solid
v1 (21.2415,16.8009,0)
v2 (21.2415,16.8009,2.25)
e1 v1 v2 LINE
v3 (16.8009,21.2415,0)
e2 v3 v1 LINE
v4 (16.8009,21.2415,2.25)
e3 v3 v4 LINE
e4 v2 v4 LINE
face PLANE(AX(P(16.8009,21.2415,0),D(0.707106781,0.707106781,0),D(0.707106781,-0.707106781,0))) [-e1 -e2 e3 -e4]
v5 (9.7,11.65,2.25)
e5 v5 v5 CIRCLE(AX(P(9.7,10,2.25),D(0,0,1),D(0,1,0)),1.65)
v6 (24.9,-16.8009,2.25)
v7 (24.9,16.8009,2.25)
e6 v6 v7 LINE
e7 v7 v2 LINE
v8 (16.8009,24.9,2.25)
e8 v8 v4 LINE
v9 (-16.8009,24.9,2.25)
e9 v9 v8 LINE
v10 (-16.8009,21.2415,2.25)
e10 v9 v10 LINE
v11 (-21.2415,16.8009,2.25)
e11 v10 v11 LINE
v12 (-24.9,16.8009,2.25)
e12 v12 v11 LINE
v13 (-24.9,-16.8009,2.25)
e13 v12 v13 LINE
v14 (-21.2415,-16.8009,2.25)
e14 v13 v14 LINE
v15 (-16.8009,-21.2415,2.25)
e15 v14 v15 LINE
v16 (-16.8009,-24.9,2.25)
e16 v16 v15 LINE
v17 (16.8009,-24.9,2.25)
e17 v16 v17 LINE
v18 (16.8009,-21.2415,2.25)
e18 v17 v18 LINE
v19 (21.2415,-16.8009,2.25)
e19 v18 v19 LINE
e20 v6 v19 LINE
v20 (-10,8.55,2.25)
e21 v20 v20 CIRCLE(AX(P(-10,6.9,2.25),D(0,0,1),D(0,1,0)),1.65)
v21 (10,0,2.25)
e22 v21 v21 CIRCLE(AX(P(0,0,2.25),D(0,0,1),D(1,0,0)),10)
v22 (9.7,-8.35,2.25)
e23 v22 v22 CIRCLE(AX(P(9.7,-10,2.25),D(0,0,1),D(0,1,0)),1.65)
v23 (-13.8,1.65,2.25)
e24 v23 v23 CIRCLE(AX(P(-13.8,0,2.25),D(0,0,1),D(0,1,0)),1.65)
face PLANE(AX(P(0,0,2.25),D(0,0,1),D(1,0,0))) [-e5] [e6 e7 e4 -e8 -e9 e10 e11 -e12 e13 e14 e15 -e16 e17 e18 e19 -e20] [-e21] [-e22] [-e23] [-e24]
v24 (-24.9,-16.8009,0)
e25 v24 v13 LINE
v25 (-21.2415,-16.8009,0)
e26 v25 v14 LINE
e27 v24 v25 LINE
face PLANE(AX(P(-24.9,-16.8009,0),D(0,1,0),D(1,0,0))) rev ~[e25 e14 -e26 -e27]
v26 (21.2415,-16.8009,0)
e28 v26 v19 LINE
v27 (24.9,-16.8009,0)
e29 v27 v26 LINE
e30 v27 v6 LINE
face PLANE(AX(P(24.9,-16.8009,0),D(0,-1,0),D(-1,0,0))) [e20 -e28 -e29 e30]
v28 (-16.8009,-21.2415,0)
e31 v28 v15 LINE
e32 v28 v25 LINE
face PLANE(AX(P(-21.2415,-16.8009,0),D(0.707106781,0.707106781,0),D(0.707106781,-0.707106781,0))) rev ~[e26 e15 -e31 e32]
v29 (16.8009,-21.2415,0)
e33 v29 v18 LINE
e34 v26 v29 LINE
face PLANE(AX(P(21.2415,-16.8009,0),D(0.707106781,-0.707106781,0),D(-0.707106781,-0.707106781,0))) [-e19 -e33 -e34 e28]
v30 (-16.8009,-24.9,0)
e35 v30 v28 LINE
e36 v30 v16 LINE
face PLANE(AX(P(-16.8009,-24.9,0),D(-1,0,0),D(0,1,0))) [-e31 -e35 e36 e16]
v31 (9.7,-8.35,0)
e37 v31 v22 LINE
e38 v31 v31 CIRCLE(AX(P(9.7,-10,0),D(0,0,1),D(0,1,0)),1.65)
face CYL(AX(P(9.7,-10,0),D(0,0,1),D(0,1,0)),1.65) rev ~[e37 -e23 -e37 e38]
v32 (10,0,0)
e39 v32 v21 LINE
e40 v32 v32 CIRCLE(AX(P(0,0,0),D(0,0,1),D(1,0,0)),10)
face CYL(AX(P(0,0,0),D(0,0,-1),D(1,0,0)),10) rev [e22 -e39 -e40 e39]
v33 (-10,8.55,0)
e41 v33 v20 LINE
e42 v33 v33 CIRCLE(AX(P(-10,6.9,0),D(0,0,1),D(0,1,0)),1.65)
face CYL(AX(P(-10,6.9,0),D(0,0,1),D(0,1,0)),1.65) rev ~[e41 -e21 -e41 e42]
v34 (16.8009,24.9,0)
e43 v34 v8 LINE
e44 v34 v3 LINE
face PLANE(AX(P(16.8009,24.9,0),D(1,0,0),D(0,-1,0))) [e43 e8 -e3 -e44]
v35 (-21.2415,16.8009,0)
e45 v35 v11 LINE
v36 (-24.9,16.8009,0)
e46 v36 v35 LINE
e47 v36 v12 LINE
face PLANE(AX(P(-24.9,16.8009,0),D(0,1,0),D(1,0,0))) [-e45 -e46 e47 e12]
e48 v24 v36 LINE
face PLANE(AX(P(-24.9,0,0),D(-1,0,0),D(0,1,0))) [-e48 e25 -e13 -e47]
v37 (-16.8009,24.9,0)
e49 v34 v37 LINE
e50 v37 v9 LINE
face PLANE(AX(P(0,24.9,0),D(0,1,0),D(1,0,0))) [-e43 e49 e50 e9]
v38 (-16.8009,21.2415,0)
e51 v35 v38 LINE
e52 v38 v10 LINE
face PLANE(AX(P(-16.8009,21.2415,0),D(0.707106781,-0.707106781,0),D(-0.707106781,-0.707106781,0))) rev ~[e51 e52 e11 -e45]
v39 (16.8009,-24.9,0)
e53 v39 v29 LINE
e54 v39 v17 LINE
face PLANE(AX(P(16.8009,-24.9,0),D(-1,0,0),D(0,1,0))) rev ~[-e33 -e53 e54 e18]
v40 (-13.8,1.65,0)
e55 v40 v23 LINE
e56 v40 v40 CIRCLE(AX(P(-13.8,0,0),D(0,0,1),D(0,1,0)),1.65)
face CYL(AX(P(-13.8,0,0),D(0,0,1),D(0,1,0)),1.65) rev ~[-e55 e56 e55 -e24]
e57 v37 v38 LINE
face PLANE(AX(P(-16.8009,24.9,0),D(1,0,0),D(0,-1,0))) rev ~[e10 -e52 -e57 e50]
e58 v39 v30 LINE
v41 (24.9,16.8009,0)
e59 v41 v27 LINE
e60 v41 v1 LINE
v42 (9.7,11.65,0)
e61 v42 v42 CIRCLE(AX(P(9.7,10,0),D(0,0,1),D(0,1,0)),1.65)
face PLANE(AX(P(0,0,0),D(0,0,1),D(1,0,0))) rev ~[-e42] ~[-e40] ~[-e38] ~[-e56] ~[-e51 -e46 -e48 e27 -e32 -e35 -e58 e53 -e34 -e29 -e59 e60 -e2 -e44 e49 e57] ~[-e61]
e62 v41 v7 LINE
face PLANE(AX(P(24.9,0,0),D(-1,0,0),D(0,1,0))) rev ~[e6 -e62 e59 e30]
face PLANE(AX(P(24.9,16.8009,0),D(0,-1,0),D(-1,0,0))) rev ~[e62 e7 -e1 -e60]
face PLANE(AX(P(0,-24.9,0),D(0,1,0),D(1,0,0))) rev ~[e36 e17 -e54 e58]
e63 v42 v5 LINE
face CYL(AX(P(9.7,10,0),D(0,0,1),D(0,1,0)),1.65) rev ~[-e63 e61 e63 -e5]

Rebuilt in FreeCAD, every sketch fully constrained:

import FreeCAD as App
import Part
import Sketcher
from FreeCAD import Vector


def add_polygon(sketch, points):
    """Adds a closed chain of lines whose ends are joined by coincident constraints."""
    first, n = sketch.GeometryCount, len(points)
    for a, b in zip(points, points[1:] + points[:1]):
        sketch.addGeometry(Part.LineSegment(App.Vector(*a, 0), App.Vector(*b, 0)), False)
    for i in range(n):
        sketch.addConstraint(Sketcher.Constraint("Coincident", first + i, 2, first + (i + 1) % n, 1))

doc = App.newDocument("Part")
body = doc.addObject("PartDesign::Body", "Body")

# Sketch on XY plane
sketch1 = body.newObject("Sketcher::SketchObject", "Sketch")
sketch1.AttachmentSupport = (doc.getObject("XY_Plane"), [""])
sketch1.MapMode = "FlatFace"
add_polygon(sketch1, [(16.8009, 24.9), (-16.8009, 24.9), (-16.8009, 21.2415), (-21.2415, 16.8009), (-24.9, 16.8009), (-24.9, -16.8009), (-21.2415, -16.8009), (-16.8009, -21.2415), (-16.8009, -24.9), (16.8009, -24.9), (16.8009, -21.2415), (21.2415, -16.8009), (24.9, -16.8009), (24.9, 16.8009), (21.2415, 16.8009), (16.8009, 21.2415)])  # lines 0-15
sketch1.addGeometry(Part.Circle(Vector(0, 0, 0), Vector(0, 0, 1), 10), False)  # 16
sketch1.addConstraint([
    Sketcher.Constraint("Horizontal", 0),
    Sketcher.Constraint("Vertical", 1),
    Sketcher.Constraint("Horizontal", 3),
    Sketcher.Constraint("Vertical", 4),
    Sketcher.Constraint("Horizontal", 5),
    Sketcher.Constraint("Vertical", 7),
    Sketcher.Constraint("Horizontal", 8),
    Sketcher.Constraint("Vertical", 9),
    Sketcher.Constraint("Horizontal", 11),
    Sketcher.Constraint("Vertical", 12),
    Sketcher.Constraint("Horizontal", 13),
    Sketcher.Constraint("Vertical", 15),
    Sketcher.Constraint("Coincident", 16, 3, -1, 1),
    Sketcher.Constraint("Symmetric", 0, 2, 8, 2, -1, 1),
    Sketcher.Constraint("Symmetric", 2, 2, 10, 2, -1, 1),
    Sketcher.Constraint("Symmetric", 4, 2, 12, 2, -1, 1),
    Sketcher.Constraint("Symmetric", 6, 2, 14, 2, -1, 1),
    Sketcher.Constraint("Symmetric", 6, 2, 9, 2, -2),
    Sketcher.Constraint("Symmetric", 5, 2, 10, 2, -2),
    Sketcher.Constraint("Perpendicular", 2, 6),
    Sketcher.Constraint("Perpendicular", 6, 10),
    Sketcher.Constraint("Perpendicular", 10, 14),
    Sketcher.Constraint("Equal", 13, 1),
    Sketcher.Constraint("Equal", 8, 4),
    Sketcher.Constraint("Diameter", 16, 20.0),
    Sketcher.Constraint("DistanceY", -1, 1, 0, 2, 24.9),
    Sketcher.Constraint("Distance", 2, 6.28),
    Sketcher.Constraint("DistanceX", 0, 2, 0, 1, 33.6018),
])
pad1 = body.newObject("PartDesign::Pad", "Pad")
pad1.Profile = sketch1
pad1.Length = 2.25

# Sketch on XY plane
sketch2 = body.newObject("Sketcher::SketchObject", "Sketch001")
sketch2.AttachmentSupport = (doc.getObject("XY_Plane"), [""])
sketch2.MapMode = "FlatFace"
sketch2.addGeometry([
    Part.Circle(Vector(-13.8, 0, 0), Vector(0, 0, 1), 1.65),
    Part.Circle(Vector(9.7, -10, 0), Vector(0, 0, 1), 1.65),
    Part.Circle(Vector(-10, 6.9, 0), Vector(0, 0, 1), 1.65),
    Part.Circle(Vector(9.7, 10, 0), Vector(0, 0, 1), 1.65),
], False)
sketch2.addConstraint([
    Sketcher.Constraint("Equal", 0, 1),
    Sketcher.Constraint("Equal", 1, 2),
    Sketcher.Constraint("Equal", 2, 3),
    Sketcher.Constraint("Symmetric", 1, 3, 3, 3, -1),
    Sketcher.Constraint("PointOnObject", 0, 3, -1),
    Sketcher.Constraint("Diameter", 0, 3.3),
    Sketcher.Constraint("DistanceY", 1, 3, -1, 1, 10.0),
    Sketcher.Constraint("DistanceX", 2, 3, -1, 1, 10.0),
    Sketcher.Constraint("DistanceX", 0, 3, -1, 1, 13.8),
    Sketcher.Constraint("DistanceX", -1, 1, 1, 3, 9.7),
    Sketcher.Constraint("DistanceY", -1, 1, 2, 3, 6.9),
])
doc.recompute()
hole = body.newObject("PartDesign::Hole", "Hole")
hole.Profile = sketch2
hole.ThreadType = "None"
hole.Diameter = 3.3
hole.DepthType = "Dimension"
hole.Depth = 12
hole.DrillPoint = "Angled"
hole.DrillPointAngle = 118
hole.Reversed = True

doc.recompute()
